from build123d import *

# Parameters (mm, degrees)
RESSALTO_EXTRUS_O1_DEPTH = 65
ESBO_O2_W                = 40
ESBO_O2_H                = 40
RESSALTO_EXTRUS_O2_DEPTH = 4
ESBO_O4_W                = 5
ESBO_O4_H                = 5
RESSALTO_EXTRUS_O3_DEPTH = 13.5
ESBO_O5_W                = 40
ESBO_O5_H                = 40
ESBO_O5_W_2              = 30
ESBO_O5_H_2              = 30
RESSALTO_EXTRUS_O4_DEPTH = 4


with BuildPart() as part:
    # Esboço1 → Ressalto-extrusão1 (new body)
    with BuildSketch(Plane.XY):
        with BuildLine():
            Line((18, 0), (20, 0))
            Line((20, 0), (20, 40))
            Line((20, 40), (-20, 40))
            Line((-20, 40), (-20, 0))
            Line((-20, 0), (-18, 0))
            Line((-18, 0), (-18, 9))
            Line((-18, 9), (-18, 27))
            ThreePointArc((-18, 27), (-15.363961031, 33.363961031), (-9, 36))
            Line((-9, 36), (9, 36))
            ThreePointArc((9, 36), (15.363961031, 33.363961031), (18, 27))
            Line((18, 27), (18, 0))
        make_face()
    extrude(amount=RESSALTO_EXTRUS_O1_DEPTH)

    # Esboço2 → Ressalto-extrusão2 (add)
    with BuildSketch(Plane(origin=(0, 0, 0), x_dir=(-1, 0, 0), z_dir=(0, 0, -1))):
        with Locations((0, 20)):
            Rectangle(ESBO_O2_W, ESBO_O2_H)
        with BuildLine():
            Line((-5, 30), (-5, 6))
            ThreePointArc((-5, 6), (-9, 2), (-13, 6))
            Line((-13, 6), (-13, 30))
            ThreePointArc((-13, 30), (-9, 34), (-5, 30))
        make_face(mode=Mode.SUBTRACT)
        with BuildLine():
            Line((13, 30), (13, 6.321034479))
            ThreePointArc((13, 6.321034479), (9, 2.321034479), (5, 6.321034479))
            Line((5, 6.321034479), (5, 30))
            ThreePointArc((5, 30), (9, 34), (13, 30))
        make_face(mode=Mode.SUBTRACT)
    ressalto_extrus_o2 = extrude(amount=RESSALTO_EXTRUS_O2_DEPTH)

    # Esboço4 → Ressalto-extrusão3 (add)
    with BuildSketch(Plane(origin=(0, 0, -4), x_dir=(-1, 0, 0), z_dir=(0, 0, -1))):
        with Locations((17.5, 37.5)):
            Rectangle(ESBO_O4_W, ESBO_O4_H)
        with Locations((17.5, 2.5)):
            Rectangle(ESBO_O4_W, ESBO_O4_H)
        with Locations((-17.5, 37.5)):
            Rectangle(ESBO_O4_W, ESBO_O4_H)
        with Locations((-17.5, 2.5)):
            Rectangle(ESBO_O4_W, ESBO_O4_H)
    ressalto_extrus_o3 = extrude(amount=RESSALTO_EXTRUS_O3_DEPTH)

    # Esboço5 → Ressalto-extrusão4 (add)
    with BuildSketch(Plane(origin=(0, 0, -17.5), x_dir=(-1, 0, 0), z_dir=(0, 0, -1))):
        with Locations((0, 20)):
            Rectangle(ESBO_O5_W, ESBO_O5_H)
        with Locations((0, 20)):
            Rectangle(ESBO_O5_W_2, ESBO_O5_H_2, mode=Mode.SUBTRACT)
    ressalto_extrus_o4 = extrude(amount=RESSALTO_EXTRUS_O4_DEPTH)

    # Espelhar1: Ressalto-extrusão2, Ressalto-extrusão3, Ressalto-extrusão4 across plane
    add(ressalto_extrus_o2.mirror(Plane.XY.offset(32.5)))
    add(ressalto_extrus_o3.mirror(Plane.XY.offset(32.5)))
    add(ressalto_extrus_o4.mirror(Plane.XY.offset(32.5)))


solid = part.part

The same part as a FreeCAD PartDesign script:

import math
import FreeCAD as App
import Part
import Sketcher
from FreeCAD import Vector
Q = App.Units.Quantity


def add_polygon(sketch, points):
    """Adds a closed chain of lines whose ends are joined by coincident constraints."""
    first, n = sketch.GeometryCount, len(points)
    for a, b in zip(points, points[1:] + points[:1]):
        sketch.addGeometry(Part.LineSegment(App.Vector(*a, 0), App.Vector(*b, 0)), False)
    for i in range(n):
        sketch.addConstraint(Sketcher.Constraint("Coincident", first + i, 2, first + (i + 1) % n, 1))

doc = App.newDocument("Part")
body = doc.addObject("PartDesign::Body", "Body")

# Sketch on XY plane
sketch1 = doc.addObject("Sketcher::SketchObject", "Sketch")
body.addObject(sketch1)
sketch1.AttachmentSupport = (doc.XY_Plane, [""])
sketch1.MapMode = "FlatFace"
sketch1.addGeometry(Part.LineSegment(Vector(18, 0, 0), Vector(20, 0, 0)), False)
sketch1.addGeometry(Part.LineSegment(Vector(20, 0, 0), Vector(20, 40, 0)), False)
sketch1.addGeometry(Part.LineSegment(Vector(20, 40, 0), Vector(-20, 40, 0)), False)
sketch1.addGeometry(Part.LineSegment(Vector(-20, 40, 0), Vector(-20, 0, 0)), False)
sketch1.addGeometry(Part.LineSegment(Vector(-20, 0, 0), Vector(-18, 0, 0)), False)
sketch1.addGeometry(Part.LineSegment(Vector(-18, 0, 0), Vector(-18, 27, 0)), False)
sketch1.addGeometry(Part.ArcOfCircle(Part.Circle(Vector(-9, 27, 0), Vector(0, 0, 1), 9), math.radians(90), math.radians(180)), False)
sketch1.addGeometry(Part.LineSegment(Vector(-9, 36, 0), Vector(9, 36, 0)), False)
sketch1.addGeometry(Part.ArcOfCircle(Part.Circle(Vector(9, 27, 0), Vector(0, 0, 1), 9), math.radians(0), math.radians(90)), False)
sketch1.addGeometry(Part.LineSegment(Vector(18, 27, 0), Vector(18, 0, 0)), False)
sketch1.addConstraint(Sketcher.Constraint("Coincident", 0, 2, 1, 1))
sketch1.addConstraint(Sketcher.Constraint("Coincident", 1, 2, 2, 1))
sketch1.addConstraint(Sketcher.Constraint("Coincident", 2, 2, 3, 1))
sketch1.addConstraint(Sketcher.Constraint("Coincident", 3, 2, 4, 1))
sketch1.addConstraint(Sketcher.Constraint("Coincident", 4, 2, 5, 1))
sketch1.addConstraint(Sketcher.Constraint("Tangent", 5, 2, 6, 2))
sketch1.addConstraint(Sketcher.Constraint("Tangent", 6, 1, 7, 1))
sketch1.addConstraint(Sketcher.Constraint("Tangent", 7, 2, 8, 2))
sketch1.addConstraint(Sketcher.Constraint("Tangent", 8, 1, 9, 1))
sketch1.addConstraint(Sketcher.Constraint("Coincident", 9, 2, 0, 1))
sketch1.addConstraint(Sketcher.Constraint("Horizontal", 0))
sketch1.addConstraint(Sketcher.Constraint("Vertical", 1))
sketch1.addConstraint(Sketcher.Constraint("Horizontal", 2))
sketch1.addConstraint(Sketcher.Constraint("Vertical", 3))
sketch1.addConstraint(Sketcher.Constraint("Horizontal", 4))
sketch1.addConstraint(Sketcher.Constraint("Vertical", 5))
sketch1.addConstraint(Sketcher.Constraint("Horizontal", 7))
sketch1.addConstraint(Sketcher.Constraint("Vertical", 9))
sketch1.addConstraint(Sketcher.Constraint("Equal", 6, 8))
sketch1.addConstraint(Sketcher.Constraint("Symmetric", 0, 2, 3, 2, -1, 1))
sketch1.addConstraint(Sketcher.Constraint("Symmetric", 4, 2, 9, 2, -2))
sketch1.addConstraint(Sketcher.Constraint("Equal", 2, 1))
sketch1.addConstraint(Sketcher.Constraint("Radius", 6, Q("9 mm")))
sketch1.addConstraint(Sketcher.Constraint("DistanceX", 0, 1, 0, 2, Q("2 mm")))
sketch1.addConstraint(Sketcher.Constraint("DistanceX", 2, 2, 2, 1, Q("40 mm")))
sketch1.addConstraint(Sketcher.Constraint("DistanceY", 5, 1, 5, 2, Q("27 mm")))
pad1 = doc.addObject("PartDesign::Pad", "Pad")
body.addObject(pad1)
pad1.Profile = sketch1
pad1.Length = 65

# Sketch on XY plane
sketch2 = doc.addObject("Sketcher::SketchObject", "Sketch001")
body.addObject(sketch2)
sketch2.AttachmentSupport = (doc.XY_Plane, [""])
sketch2.MapMode = "FlatFace"
add_polygon(sketch2, [(20, 40), (20, 0), (-20, 0), (-20, 40)])  # lines 0-3
sketch2.addGeometry(Part.ArcOfCircle(Part.Circle(Vector(9, 30, 0), Vector(0, 0, 1), 4), math.radians(0), math.radians(180)), False)  # 4
sketch2.addGeometry(Part.LineSegment(Vector(5, 30, 0), Vector(5, 6, 0)), False)  # 5
sketch2.addGeometry(Part.ArcOfCircle(Part.Circle(Vector(9, 6, 0), Vector(0, 0, 1), 4), math.radians(180), math.radians(360)), False)  # 6
sketch2.addGeometry(Part.LineSegment(Vector(13, 6, 0), Vector(13, 30, 0)), False)  # 7
sketch2.addGeometry(Part.ArcOfCircle(Part.Circle(Vector(-9, 30, 0), Vector(0, 0, 1), 4), math.radians(0), math.radians(180)), False)  # 8
sketch2.addGeometry(Part.LineSegment(Vector(-13, 30, 0), Vector(-13, 6.3, 0)), False)  # 9
sketch2.addGeometry(Part.ArcOfCircle(Part.Circle(Vector(-9, 6.3, 0), Vector(0, 0, 1), 4), math.radians(180), math.radians(360)), False)  # 10
sketch2.addGeometry(Part.LineSegment(Vector(-5, 6.3, 0), Vector(-5, 30, 0)), False)  # 11
sketch2.addConstraint(Sketcher.Constraint("Tangent", 4, 2, 5, 1))
sketch2.addConstraint(Sketcher.Constraint("Tangent", 5, 2, 6, 1))
sketch2.addConstraint(Sketcher.Constraint("Tangent", 6, 2, 7, 1))
sketch2.addConstraint(Sketcher.Constraint("Tangent", 7, 2, 4, 1))
sketch2.addConstraint(Sketcher.Constraint("Tangent", 8, 2, 9, 1))
sketch2.addConstraint(Sketcher.Constraint("Tangent", 9, 2, 10, 1))
sketch2.addConstraint(Sketcher.Constraint("Tangent", 10, 2, 11, 1))
sketch2.addConstraint(Sketcher.Constraint("Tangent", 11, 2, 8, 1))
sketch2.addConstraint(Sketcher.Constraint("Vertical", 0))
sketch2.addConstraint(Sketcher.Constraint("Horizontal", 1))
sketch2.addConstraint(Sketcher.Constraint("Vertical", 2))
sketch2.addConstraint(Sketcher.Constraint("Horizontal", 3))
sketch2.addConstraint(Sketcher.Constraint("Vertical", 5))
sketch2.addConstraint(Sketcher.Constraint("Vertical", 7))
sketch2.addConstraint(Sketcher.Constraint("Vertical", 9))
sketch2.addConstraint(Sketcher.Constraint("Vertical", 11))
sketch2.addConstraint(Sketcher.Constraint("Equal", 6, 8))
sketch2.addConstraint(Sketcher.Constraint("Symmetric", 0, 2, 1, 2, -1, 1))
sketch2.addConstraint(Sketcher.Constraint("Symmetric", 4, 3, 8, 3, -2))
sketch2.addConstraint(Sketcher.Constraint("Equal", 3, 0))
sketch2.addConstraint(Sketcher.Constraint("Radius", 4, Q("4 mm")))
sketch2.addConstraint(Sketcher.Constraint("DistanceX", 1, 2, 1, 1, Q("40 mm")))
sketch2.addConstraint(Sketcher.Constraint("DistanceY", 5, 2, 5, 1, Q("24 mm")))
sketch2.addConstraint(Sketcher.Constraint("DistanceX", -1, 1, 4, 3, Q("9 mm")))
sketch2.addConstraint(Sketcher.Constraint("DistanceY", -1, 1, 4, 3, Q("30 mm")))
sketch2.addConstraint(Sketcher.Constraint("DistanceY", 9, 2, 9, 1, Q("23.678966 mm")))
pad2 = doc.addObject("PartDesign::Pad", "Pad001")
body.addObject(pad2)
pad2.Profile = sketch2
pad2.Length = 4
pad2.Reversed = True

# Sketch on XY plane
sketch3 = doc.addObject("Sketcher::SketchObject", "Sketch002")
body.addObject(sketch3)
sketch3.AttachmentSupport = (doc.XY_Plane, [""])
sketch3.MapMode = "FlatFace"
sketch3.AttachmentOffset = App.Placement(Vector(0, 0, -4), App.Rotation())
add_polygon(sketch3, [(-15, 40), (-15, 35), (-20, 35), (-20, 40)])  # lines 0-3
add_polygon(sketch3, [(-15, 5), (-15, 0), (-20, 0), (-20, 5)])  # lines 4-7
add_polygon(sketch3, [(20, 40), (20, 35), (15, 35), (15, 40)])  # lines 8-11
add_polygon(sketch3, [(20, 5), (20, 0), (15, 0), (15, 5)])  # lines 12-15
sketch3.addConstraint(Sketcher.Constraint("Vertical", 0))
sketch3.addConstraint(Sketcher.Constraint("Horizontal", 1))
sketch3.addConstraint(Sketcher.Constraint("Vertical", 2))
sketch3.addConstraint(Sketcher.Constraint("Horizontal", 3))
sketch3.addConstraint(Sketcher.Constraint("Vertical", 4))
sketch3.addConstraint(Sketcher.Constraint("Horizontal", 5))
sketch3.addConstraint(Sketcher.Constraint("Vertical", 6))
sketch3.addConstraint(Sketcher.Constraint("Horizontal", 7))
sketch3.addConstraint(Sketcher.Constraint("Vertical", 8))
sketch3.addConstraint(Sketcher.Constraint("Horizontal", 9))
sketch3.addConstraint(Sketcher.Constraint("Vertical", 10))
sketch3.addConstraint(Sketcher.Constraint("Horizontal", 11))
sketch3.addConstraint(Sketcher.Constraint("Vertical", 12))
sketch3.addConstraint(Sketcher.Constraint("Horizontal", 13))
sketch3.addConstraint(Sketcher.Constraint("Vertical", 14))
sketch3.addConstraint(Sketcher.Constraint("Horizontal", 15))
sketch3.addConstraint(Sketcher.Constraint("Symmetric", 5, 2, 12, 2, -1, 1))
sketch3.addConstraint(Sketcher.Constraint("Symmetric", 1, 2, 8, 2, -2))
sketch3.addConstraint(Sketcher.Constraint("Symmetric", 3, 2, 10, 2, -2))
sketch3.addConstraint(Sketcher.Constraint("Symmetric", 4, 2, 13, 2, -2))
sketch3.addConstraint(Sketcher.Constraint("Horizontal", 7, 2, 14, 2))
sketch3.addConstraint(Sketcher.Constraint("Vertical", 3, 2, 4, 2))
sketch3.addConstraint(Sketcher.Constraint("Vertical", 2, 2, 5, 2))
sketch3.addConstraint(Sketcher.Constraint("Equal", 15, 0))
sketch3.addConstraint(Sketcher.Constraint("Equal", 2, 4))
sketch3.addConstraint(Sketcher.Constraint("DistanceX", 1, 2, 1, 1, Q("5 mm")))
sketch3.addConstraint(Sketcher.Constraint("DistanceX", 0, 2, -1, 1, Q("15 mm")))
sketch3.addConstraint(Sketcher.Constraint("DistanceY", -1, 1, 0, 2, Q("35 mm")))
pad3 = doc.addObject("PartDesign::Pad", "Pad002")
body.addObject(pad3)
pad3.Profile = sketch3
pad3.Length = 13.5
pad3.Reversed = True

# Sketch on XY plane
sketch4 = doc.addObject("Sketcher::SketchObject", "Sketch003")
body.addObject(sketch4)
sketch4.AttachmentSupport = (doc.XY_Plane, [""])
sketch4.MapMode = "FlatFace"
sketch4.AttachmentOffset = App.Placement(Vector(0, 0, -17.5), App.Rotation())
add_polygon(sketch4, [(20, 40), (20, 0), (-20, 0), (-20, 40)])  # lines 0-3
add_polygon(sketch4, [(-15, 5), (15, 5), (15, 35), (-15, 35)])  # lines 4-7
sketch4.addConstraint(Sketcher.Constraint("Vertical", 0))
sketch4.addConstraint(Sketcher.Constraint("Horizontal", 1))
sketch4.addConstraint(Sketcher.Constraint("Vertical", 2))
sketch4.addConstraint(Sketcher.Constraint("Horizontal", 3))
sketch4.addConstraint(Sketcher.Constraint("Horizontal", 4))
sketch4.addConstraint(Sketcher.Constraint("Vertical", 5))
sketch4.addConstraint(Sketcher.Constraint("Horizontal", 6))
sketch4.addConstraint(Sketcher.Constraint("Vertical", 7))
sketch4.addConstraint(Sketcher.Constraint("Symmetric", 0, 2, 1, 2, -1, 1))
sketch4.addConstraint(Sketcher.Constraint("Equal", 3, 0))
sketch4.addConstraint(Sketcher.Constraint("Equal", 6, 5))
sketch4.addConstraint(Sketcher.Constraint("DistanceX", 1, 2, 1, 1, Q("40 mm")))
sketch4.addConstraint(Sketcher.Constraint("DistanceX", 4, 1, 4, 2, Q("30 mm")))
sketch4.addConstraint(Sketcher.Constraint("DistanceX", -1, 1, 4, 2, Q("15 mm")))
sketch4.addConstraint(Sketcher.Constraint("DistanceY", -1, 1, 4, 2, Q("5 mm")))
pad4 = doc.addObject("PartDesign::Pad", "Pad003")
body.addObject(pad4)
pad4.Profile = sketch4
pad4.Length = 4
pad4.Reversed = True
doc.recompute()

datumplane = doc.addObject("PartDesign::Plane", "DatumPlane")
body.addObject(datumplane)
datumplane.AttachmentSupport = (doc.XY_Plane, [""])
datumplane.MapMode = "FlatFace"
datumplane.AttachmentOffset = App.Placement(Vector(0, 0, 32.5), App.Rotation())
mirrored = doc.addObject("PartDesign::Mirrored", "Mirrored")
body.addObject(mirrored)
mirrored.Originals = [pad2, pad3, pad4]
mirrored.MirrorPlane = (datumplane, [""])
body.Tip = mirrored

doc.recompute()
